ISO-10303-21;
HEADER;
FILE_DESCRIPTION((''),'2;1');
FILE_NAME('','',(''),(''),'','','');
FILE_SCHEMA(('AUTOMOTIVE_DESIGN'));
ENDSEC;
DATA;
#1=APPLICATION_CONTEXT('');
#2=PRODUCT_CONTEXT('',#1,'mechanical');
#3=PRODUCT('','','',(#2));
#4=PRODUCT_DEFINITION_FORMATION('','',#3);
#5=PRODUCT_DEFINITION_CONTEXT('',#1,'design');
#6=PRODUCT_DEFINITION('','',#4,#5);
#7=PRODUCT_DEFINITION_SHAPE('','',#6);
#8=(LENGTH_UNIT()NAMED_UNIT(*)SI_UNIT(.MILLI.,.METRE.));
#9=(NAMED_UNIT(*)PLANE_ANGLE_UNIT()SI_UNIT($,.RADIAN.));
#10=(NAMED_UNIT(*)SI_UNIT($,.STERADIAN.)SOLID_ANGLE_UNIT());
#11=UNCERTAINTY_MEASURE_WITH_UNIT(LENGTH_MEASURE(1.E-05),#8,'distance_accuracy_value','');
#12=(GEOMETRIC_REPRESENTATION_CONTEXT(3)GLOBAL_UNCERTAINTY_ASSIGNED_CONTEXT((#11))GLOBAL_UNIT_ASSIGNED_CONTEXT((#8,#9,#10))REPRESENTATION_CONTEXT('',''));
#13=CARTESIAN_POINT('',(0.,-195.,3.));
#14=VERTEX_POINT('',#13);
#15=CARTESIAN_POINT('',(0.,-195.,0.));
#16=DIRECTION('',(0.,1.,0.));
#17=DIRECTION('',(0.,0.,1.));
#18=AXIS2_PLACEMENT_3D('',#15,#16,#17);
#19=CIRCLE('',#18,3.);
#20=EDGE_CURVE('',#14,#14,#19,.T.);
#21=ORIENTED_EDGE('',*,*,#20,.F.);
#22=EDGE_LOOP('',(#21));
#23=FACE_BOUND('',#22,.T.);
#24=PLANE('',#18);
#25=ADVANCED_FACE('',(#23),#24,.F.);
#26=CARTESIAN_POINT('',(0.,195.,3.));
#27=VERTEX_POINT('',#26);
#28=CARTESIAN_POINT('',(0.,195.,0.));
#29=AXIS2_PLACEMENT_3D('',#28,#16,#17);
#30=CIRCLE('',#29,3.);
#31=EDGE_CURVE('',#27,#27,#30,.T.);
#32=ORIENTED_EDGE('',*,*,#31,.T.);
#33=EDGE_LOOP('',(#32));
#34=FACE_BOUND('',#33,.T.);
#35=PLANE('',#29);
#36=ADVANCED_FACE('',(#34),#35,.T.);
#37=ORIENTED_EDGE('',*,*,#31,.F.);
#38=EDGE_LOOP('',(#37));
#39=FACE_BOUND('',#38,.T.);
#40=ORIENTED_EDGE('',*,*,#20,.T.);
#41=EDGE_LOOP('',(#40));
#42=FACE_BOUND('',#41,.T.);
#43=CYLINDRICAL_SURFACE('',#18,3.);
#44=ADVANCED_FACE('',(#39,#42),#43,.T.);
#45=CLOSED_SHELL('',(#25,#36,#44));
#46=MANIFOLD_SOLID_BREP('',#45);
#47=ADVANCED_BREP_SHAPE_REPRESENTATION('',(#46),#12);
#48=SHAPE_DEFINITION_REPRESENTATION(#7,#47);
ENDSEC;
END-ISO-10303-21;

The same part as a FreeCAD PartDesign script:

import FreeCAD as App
import Part
import Sketcher
Q = App.Units.Quantity

doc = App.newDocument("Part")
body = doc.addObject("PartDesign::Body", "Body")

sketch1 = body.newObject("Sketcher::SketchObject", "Sketch")
sketch1.AttachmentSupport = (doc.getObject("XZ_Plane"), [""])
sketch1.MapMode = "FlatFace"
sketch1.addGeometry(Part.Circle(App.Vector(0, 0, 0), App.Vector(0, 0, 1), 3), False)
sketch1.addConstraint([
    Sketcher.Constraint("Coincident", 0, 3, -1, 1),
    Sketcher.Constraint("Diameter", 0, Q("6 mm")),
])
pad1 = body.newObject("PartDesign::Pad", "Pad")
pad1.Profile = sketch1
pad1.Type = "TwoLengths"
pad1.Length = 195
pad1.Length2 = 195
pad1.Reversed = True

doc.recompute()
